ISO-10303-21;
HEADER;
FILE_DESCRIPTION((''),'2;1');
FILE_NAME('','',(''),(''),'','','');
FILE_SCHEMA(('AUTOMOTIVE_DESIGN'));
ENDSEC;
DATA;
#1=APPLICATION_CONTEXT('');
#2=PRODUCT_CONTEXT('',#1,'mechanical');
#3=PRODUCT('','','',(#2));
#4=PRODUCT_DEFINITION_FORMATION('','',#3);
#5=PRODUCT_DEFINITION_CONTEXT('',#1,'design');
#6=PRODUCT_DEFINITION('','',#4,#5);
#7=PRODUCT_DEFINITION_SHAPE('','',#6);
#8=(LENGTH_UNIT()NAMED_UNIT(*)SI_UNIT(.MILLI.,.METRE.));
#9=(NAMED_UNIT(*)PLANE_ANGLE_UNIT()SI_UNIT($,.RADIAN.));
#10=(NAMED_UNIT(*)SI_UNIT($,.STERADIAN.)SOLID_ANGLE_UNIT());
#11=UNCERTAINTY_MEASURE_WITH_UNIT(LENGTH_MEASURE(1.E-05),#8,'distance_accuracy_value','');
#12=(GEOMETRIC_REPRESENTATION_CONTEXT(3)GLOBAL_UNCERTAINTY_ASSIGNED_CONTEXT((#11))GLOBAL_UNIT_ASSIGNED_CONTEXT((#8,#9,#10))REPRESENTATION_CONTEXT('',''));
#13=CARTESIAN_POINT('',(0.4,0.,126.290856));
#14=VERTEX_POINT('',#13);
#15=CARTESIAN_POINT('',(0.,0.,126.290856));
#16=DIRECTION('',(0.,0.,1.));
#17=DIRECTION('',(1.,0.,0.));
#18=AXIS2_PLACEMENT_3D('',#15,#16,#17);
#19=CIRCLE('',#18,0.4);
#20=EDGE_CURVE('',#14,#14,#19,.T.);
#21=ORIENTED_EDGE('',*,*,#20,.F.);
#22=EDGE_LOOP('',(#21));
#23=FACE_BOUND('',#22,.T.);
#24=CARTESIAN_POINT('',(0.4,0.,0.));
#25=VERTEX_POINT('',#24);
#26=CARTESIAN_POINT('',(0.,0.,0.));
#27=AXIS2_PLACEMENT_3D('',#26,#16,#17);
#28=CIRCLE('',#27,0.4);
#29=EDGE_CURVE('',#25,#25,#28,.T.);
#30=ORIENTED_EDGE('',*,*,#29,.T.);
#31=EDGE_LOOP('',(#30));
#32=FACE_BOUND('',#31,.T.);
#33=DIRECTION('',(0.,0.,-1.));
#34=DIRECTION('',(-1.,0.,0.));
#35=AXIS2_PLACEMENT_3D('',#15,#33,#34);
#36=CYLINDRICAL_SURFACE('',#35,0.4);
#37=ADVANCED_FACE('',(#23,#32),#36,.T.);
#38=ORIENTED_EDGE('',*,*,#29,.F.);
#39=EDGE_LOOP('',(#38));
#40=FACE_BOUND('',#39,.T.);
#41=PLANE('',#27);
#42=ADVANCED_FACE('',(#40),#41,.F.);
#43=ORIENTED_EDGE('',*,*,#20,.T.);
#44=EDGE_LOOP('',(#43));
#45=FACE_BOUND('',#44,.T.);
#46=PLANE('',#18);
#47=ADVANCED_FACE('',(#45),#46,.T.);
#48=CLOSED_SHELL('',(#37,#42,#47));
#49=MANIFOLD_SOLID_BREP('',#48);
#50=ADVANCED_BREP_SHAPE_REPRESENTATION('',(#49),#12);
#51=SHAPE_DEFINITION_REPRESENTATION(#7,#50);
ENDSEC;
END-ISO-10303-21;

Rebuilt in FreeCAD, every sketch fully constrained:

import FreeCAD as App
import Part
import Sketcher

V = App.Vector
Q = App.Units.Quantity

doc = App.newDocument("Part")
body = doc.addObject("PartDesign::Body", "Body")

# Sketch on XY plane
sketch1 = body.newObject("Sketcher::SketchObject", "Sketch")
sketch1.AttachmentSupport = (doc.getObject("XY_Plane"), [""])
sketch1.MapMode = "FlatFace"
sketch1.addGeometry(Part.Circle(V(0, 0, 0), V(0, 0, 1), 0.4), False)
sketch1.addConstraint(Sketcher.Constraint("Coincident", 0, 3, -1, 1))
sketch1.addConstraint(Sketcher.Constraint("Diameter", 0, Q("0.8 mm")))
pad1 = body.newObject("PartDesign::Pad", "Pad")
pad1.Profile = sketch1
pad1.Length = 126.290856

doc.recompute()
